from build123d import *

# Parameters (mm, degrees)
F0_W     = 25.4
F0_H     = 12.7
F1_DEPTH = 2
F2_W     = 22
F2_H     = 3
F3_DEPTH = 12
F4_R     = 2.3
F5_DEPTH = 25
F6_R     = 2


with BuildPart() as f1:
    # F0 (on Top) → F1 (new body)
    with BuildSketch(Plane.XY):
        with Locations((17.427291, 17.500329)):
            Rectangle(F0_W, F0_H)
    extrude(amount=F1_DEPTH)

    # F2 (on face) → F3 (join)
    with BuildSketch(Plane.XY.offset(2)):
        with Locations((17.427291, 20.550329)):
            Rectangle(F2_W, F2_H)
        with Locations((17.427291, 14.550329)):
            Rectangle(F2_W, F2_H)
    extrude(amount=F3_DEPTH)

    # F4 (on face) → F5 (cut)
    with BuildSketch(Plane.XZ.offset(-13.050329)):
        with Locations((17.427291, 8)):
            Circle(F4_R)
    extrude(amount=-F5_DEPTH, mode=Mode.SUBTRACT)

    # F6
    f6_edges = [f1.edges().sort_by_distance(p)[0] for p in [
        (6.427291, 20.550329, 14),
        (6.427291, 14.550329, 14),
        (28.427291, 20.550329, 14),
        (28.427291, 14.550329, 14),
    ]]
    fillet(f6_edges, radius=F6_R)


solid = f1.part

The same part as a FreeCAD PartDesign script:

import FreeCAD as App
import Part
import Sketcher

V = App.Vector


def edges_at(feature, points):
    """Names of the edges that pass closest to the given points."""
    edges = feature.Shape.Edges
    near = lambda p: min(range(len(edges)), key=lambda i: edges[i].distToShape(Part.Vertex(*p))[0])
    return sorted({f"Edge{near(p) + 1}" for p in points})


def add_polygon(sketch, points):
    """Adds a closed chain of lines whose ends are joined by coincident constraints."""
    first, n = sketch.GeometryCount, len(points)
    for a, b in zip(points, points[1:] + points[:1]):
        sketch.addGeometry(Part.LineSegment(App.Vector(*a, 0), App.Vector(*b, 0)), False)
    for i in range(n):
        sketch.addConstraint(Sketcher.Constraint("Coincident", first + i, 2, first + (i + 1) % n, 1))

doc = App.newDocument("Part")
body = doc.addObject("PartDesign::Body", "Body")

sketch1 = body.newObject("Sketcher::SketchObject", "Sketch")
sketch1.AttachmentSupport = (doc.getObject("XY_Plane"), [""])
sketch1.MapMode = "FlatFace"
add_polygon(sketch1, [(5, 24), (5, 11), (30, 11), (30, 24)])
sketch1.addConstraint([
    Sketcher.Constraint("Vertical", 0),
    Sketcher.Constraint("Horizontal", 1),
    Sketcher.Constraint("Vertical", 2),
    Sketcher.Constraint("Horizontal", 3),
    Sketcher.Constraint("DistanceX", 1, 1, 1, 2, 25.4),
    Sketcher.Constraint("DistanceY", 0, 2, 0, 1, 12.7),
    Sketcher.Constraint("DistanceX", -1, 1, 0, 2, 4.727291),
    Sketcher.Constraint("DistanceY", -1, 1, 0, 2, 11.150329),
])
pad1 = body.newObject("PartDesign::Pad", "Pad")
pad1.Profile = sketch1
pad1.Length = 2

sketch2 = body.newObject("Sketcher::SketchObject", "Sketch001")
sketch2.AttachmentSupport = (doc.getObject("XY_Plane"), [""])
sketch2.MapMode = "FlatFace"
sketch2.AttachmentOffset = App.Placement(V(0, 0, 2), App.Rotation())
add_polygon(sketch2, [(6.4, 22.1), (6.4, 19.1), (28.4, 19.1), (28.4, 22.1)])
add_polygon(sketch2, [(6.4, 16.1), (6.4, 13.1), (28.4, 13.1), (28.4, 16.1)])
sketch2.addConstraint([
    Sketcher.Constraint("Vertical", 0),
    Sketcher.Constraint("Horizontal", 1),
    Sketcher.Constraint("Vertical", 2),
    Sketcher.Constraint("Horizontal", 3),
    Sketcher.Constraint("Vertical", 4),
    Sketcher.Constraint("Horizontal", 5),
    Sketcher.Constraint("Vertical", 6),
    Sketcher.Constraint("Horizontal", 7),
    Sketcher.Constraint("Vertical", 3, 2, 4, 2),
    Sketcher.Constraint("Vertical", 2, 2, 5, 2),
    Sketcher.Constraint("Equal", 2, 4),
    Sketcher.Constraint("DistanceX", 1, 1, 1, 2, 22.0),
    Sketcher.Constraint("DistanceY", 0, 2, 0, 1, 3.0),
    Sketcher.Constraint("DistanceY", 4, 2, 0, 2, 6.0),
    Sketcher.Constraint("DistanceX", -1, 1, 0, 2, 6.427291),
    Sketcher.Constraint("DistanceY", -1, 1, 0, 2, 19.050329),
])
pad2 = body.newObject("PartDesign::Pad", "Pad001")
pad2.Profile = sketch2
pad2.Length = 12

sketch3 = body.newObject("Sketcher::SketchObject", "Sketch002")
sketch3.AttachmentSupport = (doc.getObject("XZ_Plane"), [""])
sketch3.MapMode = "FlatFace"
sketch3.AttachmentOffset = App.Placement(V(0, 0, -13.050329), App.Rotation())
sketch3.addGeometry(Part.Circle(V(17.4, 8, 0), V(0, 0, 1), 2.3), False)
sketch3.addConstraint([
    Sketcher.Constraint("Diameter", 0, 4.6),
    Sketcher.Constraint("DistanceY", -1, 1, 0, 3, 8.0),
    Sketcher.Constraint("DistanceX", -1, 1, 0, 3, 17.427291),
])
pocket1 = body.newObject("PartDesign::Pocket", "Pocket")
pocket1.Profile = sketch3
pocket1.Length = 25
doc.recompute()

fillet = body.newObject("PartDesign::Fillet", "Fillet")
fillet.Base = (pocket1, edges_at(pocket1, [
    (6.427, 20.55, 14),
    (6.427, 14.55, 14),
    (28.427, 20.55, 14),
    (28.427, 14.55, 14),
]))
fillet.Radius = 2

doc.recompute()
